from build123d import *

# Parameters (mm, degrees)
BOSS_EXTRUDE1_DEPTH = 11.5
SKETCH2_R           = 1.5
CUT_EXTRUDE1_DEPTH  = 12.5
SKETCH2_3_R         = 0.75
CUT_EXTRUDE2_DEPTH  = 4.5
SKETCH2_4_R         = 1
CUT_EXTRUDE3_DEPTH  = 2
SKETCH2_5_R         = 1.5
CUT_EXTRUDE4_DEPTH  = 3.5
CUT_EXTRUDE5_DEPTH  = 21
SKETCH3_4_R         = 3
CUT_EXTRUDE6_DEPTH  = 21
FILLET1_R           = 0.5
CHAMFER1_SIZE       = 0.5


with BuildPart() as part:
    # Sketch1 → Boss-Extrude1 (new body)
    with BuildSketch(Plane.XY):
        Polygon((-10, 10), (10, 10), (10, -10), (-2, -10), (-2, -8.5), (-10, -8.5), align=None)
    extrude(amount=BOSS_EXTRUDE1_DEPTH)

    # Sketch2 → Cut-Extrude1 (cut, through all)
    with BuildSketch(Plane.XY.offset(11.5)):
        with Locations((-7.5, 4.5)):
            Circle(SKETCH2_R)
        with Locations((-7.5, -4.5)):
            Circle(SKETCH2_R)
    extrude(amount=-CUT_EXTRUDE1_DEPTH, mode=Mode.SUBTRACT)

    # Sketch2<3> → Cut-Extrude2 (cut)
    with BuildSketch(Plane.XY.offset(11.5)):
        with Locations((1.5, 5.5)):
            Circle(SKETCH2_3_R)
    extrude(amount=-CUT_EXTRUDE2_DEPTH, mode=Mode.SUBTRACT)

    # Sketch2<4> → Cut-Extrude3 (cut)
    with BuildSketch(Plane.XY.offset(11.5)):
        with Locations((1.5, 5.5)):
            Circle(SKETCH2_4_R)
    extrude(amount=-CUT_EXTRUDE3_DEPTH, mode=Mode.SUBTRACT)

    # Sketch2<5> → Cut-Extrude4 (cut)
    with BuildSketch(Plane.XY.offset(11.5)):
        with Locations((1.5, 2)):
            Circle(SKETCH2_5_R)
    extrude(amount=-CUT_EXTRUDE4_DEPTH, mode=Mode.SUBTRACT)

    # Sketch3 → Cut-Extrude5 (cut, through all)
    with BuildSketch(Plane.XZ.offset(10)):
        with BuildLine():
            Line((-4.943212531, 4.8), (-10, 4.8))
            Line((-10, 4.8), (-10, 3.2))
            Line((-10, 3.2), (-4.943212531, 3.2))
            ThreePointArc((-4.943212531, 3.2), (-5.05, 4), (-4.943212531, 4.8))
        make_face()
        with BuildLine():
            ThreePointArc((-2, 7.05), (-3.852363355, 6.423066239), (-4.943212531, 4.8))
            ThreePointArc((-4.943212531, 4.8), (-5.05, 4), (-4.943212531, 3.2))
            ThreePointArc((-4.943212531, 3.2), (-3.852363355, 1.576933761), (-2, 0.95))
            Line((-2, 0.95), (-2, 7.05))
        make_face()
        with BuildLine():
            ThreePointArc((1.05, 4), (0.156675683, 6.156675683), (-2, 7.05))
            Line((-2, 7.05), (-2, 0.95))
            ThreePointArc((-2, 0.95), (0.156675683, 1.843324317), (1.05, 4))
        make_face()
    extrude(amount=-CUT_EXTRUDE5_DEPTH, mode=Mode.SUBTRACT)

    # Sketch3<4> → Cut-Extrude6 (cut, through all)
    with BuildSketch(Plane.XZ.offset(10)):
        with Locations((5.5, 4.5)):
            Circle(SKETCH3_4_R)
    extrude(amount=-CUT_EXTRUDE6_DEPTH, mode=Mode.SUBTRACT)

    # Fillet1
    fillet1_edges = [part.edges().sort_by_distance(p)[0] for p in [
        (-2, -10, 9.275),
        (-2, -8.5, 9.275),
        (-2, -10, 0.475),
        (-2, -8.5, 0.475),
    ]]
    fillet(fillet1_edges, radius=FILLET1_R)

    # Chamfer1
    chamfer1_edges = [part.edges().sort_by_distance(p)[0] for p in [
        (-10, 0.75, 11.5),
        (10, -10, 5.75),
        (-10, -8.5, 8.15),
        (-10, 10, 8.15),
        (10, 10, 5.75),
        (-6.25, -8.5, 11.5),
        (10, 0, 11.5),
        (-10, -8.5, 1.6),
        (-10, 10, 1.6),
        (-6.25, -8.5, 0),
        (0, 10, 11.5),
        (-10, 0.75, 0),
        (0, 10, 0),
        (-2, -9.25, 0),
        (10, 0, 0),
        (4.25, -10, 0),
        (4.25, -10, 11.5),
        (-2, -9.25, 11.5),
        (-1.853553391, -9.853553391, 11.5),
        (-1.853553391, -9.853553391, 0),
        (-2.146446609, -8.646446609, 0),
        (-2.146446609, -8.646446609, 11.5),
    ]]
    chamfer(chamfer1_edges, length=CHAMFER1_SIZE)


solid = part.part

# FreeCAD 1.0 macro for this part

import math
import FreeCAD as App
import Part
import Sketcher

V = App.Vector
Q = App.Units.Quantity


def edges_at(feature, points):
    """Names of the edges that pass closest to the given points."""
    edges = feature.Shape.Edges
    near = lambda p: min(range(len(edges)), key=lambda i: edges[i].distToShape(Part.Vertex(*p))[0])
    return sorted({f"Edge{near(p) + 1}" for p in points})


def add_polygon(sketch, points):
    """Adds a closed chain of lines whose ends are joined by coincident constraints."""
    first, n = sketch.GeometryCount, len(points)
    for a, b in zip(points, points[1:] + points[:1]):
        sketch.addGeometry(Part.LineSegment(App.Vector(*a, 0), App.Vector(*b, 0)), False)
    for i in range(n):
        sketch.addConstraint(Sketcher.Constraint("Coincident", first + i, 2, first + (i + 1) % n, 1))

doc = App.newDocument("Part")
params = doc.addObject("Spreadsheet::Sheet", "Params")
for row, (alias, value) in enumerate([
    ("sketch1_width", "20 mm"),
    ("sketch1_width2", "8 mm"),
    ("sketch1_height", "18.5 mm"),
    ("pad1_length", "11.5 mm"),
    ("sketch2_diameter", "3 mm"),
    ("sketch3_diameter", "1.5 mm"),
    ("pocket2_length", "4.5 mm"),
    ("sketch4_diameter", "2 mm"),
    ("pocket3_length", "2 mm"),
    ("sketch5_diameter", "3 mm"),
    ("pocket4_length", "3.5 mm"),
    ("sketch6_radius", "3.05 mm"),
    ("sketch6_height", "1.6 mm"),
    ("sketch7_diameter", "6 mm"),
    ("fillet_radius", "0.5 mm"),
    ("chamfer_size", "0.5 mm"),
], start=1):
    params.set(f"A{row}", alias)
    params.set(f"B{row}", "=" + value)
    params.setAlias(f"B{row}", alias)

body = doc.addObject("PartDesign::Body", "Body")

# Sketch on XY plane
sketch1 = doc.addObject("Sketcher::SketchObject", "Sketch")
body.addObject(sketch1)
sketch1.AttachmentSupport = (doc.XY_Plane, [""])
sketch1.MapMode = "FlatFace"
add_polygon(sketch1, [(10, 10), (-10, 10), (-10, -8.5), (-2, -8.5), (-2, -10), (10, -10)])  # lines 0-5
sketch1.addConstraint([
    Sketcher.Constraint("Horizontal", 0),
    Sketcher.Constraint("Vertical", 1),
    Sketcher.Constraint("Horizontal", 2),
    Sketcher.Constraint("Vertical", 3),
    Sketcher.Constraint("Horizontal", 4),
    Sketcher.Constraint("Vertical", 5),
    Sketcher.Constraint("Symmetric", 0, 2, 4, 2, -1, 1),
    Sketcher.Constraint("Equal", 0, 5),
    Sketcher.Constraint("DistanceX", 0, 2, 0, 1, Q("20 mm")),
    Sketcher.Constraint("DistanceX", 2, 1, 2, 2, Q("8 mm")),
    Sketcher.Constraint("DistanceY", 1, 2, 1, 1, Q("18.5 mm")),
])
sketch1.setExpression("Constraints[14]", "Params.sketch1_width")
sketch1.setExpression("Constraints[15]", "Params.sketch1_width2")
sketch1.setExpression("Constraints[16]", "Params.sketch1_height")
pad1 = doc.addObject("PartDesign::Pad", "Pad")
body.addObject(pad1)
pad1.Profile = sketch1
pad1.setExpression("Length", "Params.pad1_length")

# Sketch on XY plane
sketch2 = doc.addObject("Sketcher::SketchObject", "Sketch001")
body.addObject(sketch2)
sketch2.AttachmentSupport = (doc.XY_Plane, [""])
sketch2.MapMode = "FlatFace"
sketch2.AttachmentOffset = App.Placement(V(0, 0, 11.5), App.Rotation())
sketch2.addGeometry([
    Part.Circle(V(-7.5, 4.5, 0), V(0, 0, 1), 1.5),
    Part.Circle(V(-7.5, -4.5, 0), V(0, 0, 1), 1.5),
], False)
sketch2.addConstraint([
    Sketcher.Constraint("Equal", 0, 1),
    Sketcher.Constraint("Symmetric", 0, 3, 1, 3, -1),
    Sketcher.Constraint("Diameter", 0, Q("3 mm")),
    Sketcher.Constraint("DistanceY", 1, 3, 0, 3, Q("9 mm")),
    Sketcher.Constraint("DistanceX", 0, 3, -1, 1, Q("7.5 mm")),
])
sketch2.setExpression("Constraints[2]", "Params.sketch2_diameter")
pocket1 = doc.addObject("PartDesign::Pocket", "Pocket")
body.addObject(pocket1)
pocket1.Profile = sketch2
pocket1.Type = "ThroughAll"

# Sketch on XY plane
sketch3 = doc.addObject("Sketcher::SketchObject", "Sketch002")
body.addObject(sketch3)
sketch3.AttachmentSupport = (doc.XY_Plane, [""])
sketch3.MapMode = "FlatFace"
sketch3.AttachmentOffset = App.Placement(V(0, 0, 11.5), App.Rotation())
sketch3.addGeometry(Part.Circle(V(1.5, 5.5, 0), V(0, 0, 1), 0.8), False)
sketch3.addConstraint([
    Sketcher.Constraint("Diameter", 0, Q("1.5 mm")),
    Sketcher.Constraint("DistanceX", -1, 1, 0, 3, Q("1.5 mm")),
    Sketcher.Constraint("DistanceY", -1, 1, 0, 3, Q("5.5 mm")),
])
sketch3.setExpression("Constraints[0]", "Params.sketch3_diameter")
pocket2 = doc.addObject("PartDesign::Pocket", "Pocket001")
body.addObject(pocket2)
pocket2.Profile = sketch3
pocket2.setExpression("Length", "Params.pocket2_length")

# Sketch on XY plane
sketch4 = doc.addObject("Sketcher::SketchObject", "Sketch003")
body.addObject(sketch4)
sketch4.AttachmentSupport = (doc.XY_Plane, [""])
sketch4.MapMode = "FlatFace"
sketch4.AttachmentOffset = App.Placement(V(0, 0, 11.5), App.Rotation())
sketch4.addGeometry(Part.Circle(V(1.5, 5.5, 0), V(0, 0, 1), 1), False)
sketch4.addConstraint([
    Sketcher.Constraint("Diameter", 0, Q("2 mm")),
    Sketcher.Constraint("DistanceX", -1, 1, 0, 3, Q("1.5 mm")),
    Sketcher.Constraint("DistanceY", -1, 1, 0, 3, Q("5.5 mm")),
])
sketch4.setExpression("Constraints[0]", "Params.sketch4_diameter")
pocket3 = doc.addObject("PartDesign::Pocket", "Pocket002")
body.addObject(pocket3)
pocket3.Profile = sketch4
pocket3.setExpression("Length", "Params.pocket3_length")

# Sketch on XY plane
sketch5 = doc.addObject("Sketcher::SketchObject", "Sketch004")
body.addObject(sketch5)
sketch5.AttachmentSupport = (doc.XY_Plane, [""])
sketch5.MapMode = "FlatFace"
sketch5.AttachmentOffset = App.Placement(V(0, 0, 11.5), App.Rotation())
sketch5.addGeometry(Part.Circle(V(1.5, 2, 0), V(0, 0, 1), 1.5), False)
sketch5.addConstraint([
    Sketcher.Constraint("Diameter", 0, Q("3 mm")),
    Sketcher.Constraint("DistanceY", -1, 1, 0, 3, Q("2 mm")),
    Sketcher.Constraint("DistanceX", -1, 1, 0, 3, Q("1.5 mm")),
])
sketch5.setExpression("Constraints[0]", "Params.sketch5_diameter")
pocket4 = doc.addObject("PartDesign::Pocket", "Pocket003")
body.addObject(pocket4)
pocket4.Profile = sketch5
pocket4.setExpression("Length", "Params.pocket4_length")

# Sketch on XZ plane
sketch6 = doc.addObject("Sketcher::SketchObject", "Sketch005")
body.addObject(sketch6)
sketch6.AttachmentSupport = (doc.XZ_Plane, [""])
sketch6.MapMode = "FlatFace"
sketch6.AttachmentOffset = App.Placement(V(0, 0, 10), App.Rotation())
sketch6.addGeometry([
    Part.LineSegment(V(-10, 4.8, 0), V(-10, 3.2, 0)),  # 0
    Part.LineSegment(V(-10, 3.2, 0), V(-4.9, 3.2, 0)),  # 1
    Part.ArcOfCircle(Part.Circle(V(-2, 4, 0), V(0, 0, 1), 3.1), math.radians(-165), math.radians(-90)),  # 2
    Part.ArcOfCircle(Part.Circle(V(-2, 4, 0), V(0, 0, 1), 3), math.radians(-90), math.radians(0)),  # 3
    Part.ArcOfCircle(Part.Circle(V(-2, 4, 0), V(0, 0, 1), 3), math.radians(0), math.radians(90)),  # 4
    Part.ArcOfCircle(Part.Circle(V(-2, 4, 0), V(0, 0, 1), 3.1), math.radians(90), math.radians(165)),  # 5
    Part.LineSegment(V(-4.9, 4.8, 0), V(-10, 4.8, 0)),  # 6
], False)
sketch6.addConstraint([
    Sketcher.Constraint("Coincident", 0, 2, 1, 1),
    Sketcher.Constraint("Coincident", 1, 2, 2, 1),
    Sketcher.Constraint("Tangent", 2, 2, 3, 1),
    Sketcher.Constraint("Tangent", 3, 2, 4, 1),
    Sketcher.Constraint("Tangent", 4, 2, 5, 1),
    Sketcher.Constraint("Coincident", 5, 2, 6, 1),
    Sketcher.Constraint("Coincident", 6, 2, 0, 1),
    Sketcher.Constraint("Vertical", 0),
    Sketcher.Constraint("Horizontal", 1),
    Sketcher.Constraint("Horizontal", 6),
    Sketcher.Constraint("Coincident", 4, 3, 2, 3),
    Sketcher.Constraint("Equal", 4, 5),
    Sketcher.Constraint("Horizontal", 5, 3, 3, 2),
    Sketcher.Constraint("Vertical", 5, 3, 2, 2),
    Sketcher.Constraint("Vertical", 2, 2, 4, 2),
    Sketcher.Constraint("Vertical", 1, 2, 5, 2),
    Sketcher.Constraint("Radius", 2, Q("3.05 mm")),
    Sketcher.Constraint("DistanceY", 0, 2, 0, 1, Q("1.6 mm")),
    Sketcher.Constraint("DistanceX", 2, 3, -1, 1, Q("2 mm")),
    Sketcher.Constraint("DistanceY", -1, 1, 2, 3, Q("4 mm")),
    Sketcher.Constraint("DistanceX", 0, 2, -1, 1, Q("10 mm")),
])
sketch6.setExpression("Constraints[16]", "Params.sketch6_radius")
sketch6.setExpression("Constraints[17]", "Params.sketch6_height")
pocket5 = doc.addObject("PartDesign::Pocket", "Pocket004")
body.addObject(pocket5)
pocket5.Profile = sketch6
pocket5.Type = "ThroughAll"

# Sketch on XZ plane
sketch7 = doc.addObject("Sketcher::SketchObject", "Sketch006")
body.addObject(sketch7)
sketch7.AttachmentSupport = (doc.XZ_Plane, [""])
sketch7.MapMode = "FlatFace"
sketch7.AttachmentOffset = App.Placement(V(0, 0, 10), App.Rotation())
sketch7.addGeometry(Part.Circle(V(5.5, 4.5, 0), V(0, 0, 1), 3), False)
sketch7.addConstraint([
    Sketcher.Constraint("Diameter", 0, Q("6 mm")),
    Sketcher.Constraint("DistanceX", -1, 1, 0, 3, Q("5.5 mm")),
    Sketcher.Constraint("DistanceY", -1, 1, 0, 3, Q("4.5 mm")),
])
sketch7.setExpression("Constraints[0]", "Params.sketch7_diameter")
pocket6 = doc.addObject("PartDesign::Pocket", "Pocket005")
body.addObject(pocket6)
pocket6.Profile = sketch7
pocket6.Type = "ThroughAll"
doc.recompute()

fillet = doc.addObject("PartDesign::Fillet", "Fillet")
body.addObject(fillet)
fillet.Base = (pocket6, edges_at(pocket6, [
    (-2, -10, 9.275),
    (-2, -8.5, 9.275),
    (-2, -10, 0.475),
    (-2, -8.5, 0.475),
]))
fillet.setExpression("Radius", "Params.fillet_radius")
doc.recompute()

chamfer = doc.addObject("PartDesign::Chamfer", "Chamfer")
body.addObject(chamfer)
chamfer.Base = (fillet, edges_at(fillet, [
    (-10, 0.75, 11.5),
    (10, -10, 5.75),
    (-10, -8.5, 8.15),
    (-10, 10, 8.15),
    (10, 10, 5.75),
    (-6.25, -8.5, 11.5),
    (10, 0, 11.5),
    (-10, -8.5, 1.6),
    (-10, 10, 1.6),
    (-6.25, -8.5, 0),
    (0, 10, 11.5),
    (-10, 0.75, 0),
    (0, 10, 0),
    (-2, -9.25, 0),
    (10, 0, 0),
    (4.25, -10, 0),
    (4.25, -10, 11.5),
    (-2, -9.25, 11.5),
    (-1.854, -9.854, 11.5),
    (-1.854, -9.854, 0),
    (-2.146, -8.646, 0),
    (-2.146, -8.646, 11.5),
]))
chamfer.setExpression("Size", "Params.chamfer_size")

doc.recompute()
